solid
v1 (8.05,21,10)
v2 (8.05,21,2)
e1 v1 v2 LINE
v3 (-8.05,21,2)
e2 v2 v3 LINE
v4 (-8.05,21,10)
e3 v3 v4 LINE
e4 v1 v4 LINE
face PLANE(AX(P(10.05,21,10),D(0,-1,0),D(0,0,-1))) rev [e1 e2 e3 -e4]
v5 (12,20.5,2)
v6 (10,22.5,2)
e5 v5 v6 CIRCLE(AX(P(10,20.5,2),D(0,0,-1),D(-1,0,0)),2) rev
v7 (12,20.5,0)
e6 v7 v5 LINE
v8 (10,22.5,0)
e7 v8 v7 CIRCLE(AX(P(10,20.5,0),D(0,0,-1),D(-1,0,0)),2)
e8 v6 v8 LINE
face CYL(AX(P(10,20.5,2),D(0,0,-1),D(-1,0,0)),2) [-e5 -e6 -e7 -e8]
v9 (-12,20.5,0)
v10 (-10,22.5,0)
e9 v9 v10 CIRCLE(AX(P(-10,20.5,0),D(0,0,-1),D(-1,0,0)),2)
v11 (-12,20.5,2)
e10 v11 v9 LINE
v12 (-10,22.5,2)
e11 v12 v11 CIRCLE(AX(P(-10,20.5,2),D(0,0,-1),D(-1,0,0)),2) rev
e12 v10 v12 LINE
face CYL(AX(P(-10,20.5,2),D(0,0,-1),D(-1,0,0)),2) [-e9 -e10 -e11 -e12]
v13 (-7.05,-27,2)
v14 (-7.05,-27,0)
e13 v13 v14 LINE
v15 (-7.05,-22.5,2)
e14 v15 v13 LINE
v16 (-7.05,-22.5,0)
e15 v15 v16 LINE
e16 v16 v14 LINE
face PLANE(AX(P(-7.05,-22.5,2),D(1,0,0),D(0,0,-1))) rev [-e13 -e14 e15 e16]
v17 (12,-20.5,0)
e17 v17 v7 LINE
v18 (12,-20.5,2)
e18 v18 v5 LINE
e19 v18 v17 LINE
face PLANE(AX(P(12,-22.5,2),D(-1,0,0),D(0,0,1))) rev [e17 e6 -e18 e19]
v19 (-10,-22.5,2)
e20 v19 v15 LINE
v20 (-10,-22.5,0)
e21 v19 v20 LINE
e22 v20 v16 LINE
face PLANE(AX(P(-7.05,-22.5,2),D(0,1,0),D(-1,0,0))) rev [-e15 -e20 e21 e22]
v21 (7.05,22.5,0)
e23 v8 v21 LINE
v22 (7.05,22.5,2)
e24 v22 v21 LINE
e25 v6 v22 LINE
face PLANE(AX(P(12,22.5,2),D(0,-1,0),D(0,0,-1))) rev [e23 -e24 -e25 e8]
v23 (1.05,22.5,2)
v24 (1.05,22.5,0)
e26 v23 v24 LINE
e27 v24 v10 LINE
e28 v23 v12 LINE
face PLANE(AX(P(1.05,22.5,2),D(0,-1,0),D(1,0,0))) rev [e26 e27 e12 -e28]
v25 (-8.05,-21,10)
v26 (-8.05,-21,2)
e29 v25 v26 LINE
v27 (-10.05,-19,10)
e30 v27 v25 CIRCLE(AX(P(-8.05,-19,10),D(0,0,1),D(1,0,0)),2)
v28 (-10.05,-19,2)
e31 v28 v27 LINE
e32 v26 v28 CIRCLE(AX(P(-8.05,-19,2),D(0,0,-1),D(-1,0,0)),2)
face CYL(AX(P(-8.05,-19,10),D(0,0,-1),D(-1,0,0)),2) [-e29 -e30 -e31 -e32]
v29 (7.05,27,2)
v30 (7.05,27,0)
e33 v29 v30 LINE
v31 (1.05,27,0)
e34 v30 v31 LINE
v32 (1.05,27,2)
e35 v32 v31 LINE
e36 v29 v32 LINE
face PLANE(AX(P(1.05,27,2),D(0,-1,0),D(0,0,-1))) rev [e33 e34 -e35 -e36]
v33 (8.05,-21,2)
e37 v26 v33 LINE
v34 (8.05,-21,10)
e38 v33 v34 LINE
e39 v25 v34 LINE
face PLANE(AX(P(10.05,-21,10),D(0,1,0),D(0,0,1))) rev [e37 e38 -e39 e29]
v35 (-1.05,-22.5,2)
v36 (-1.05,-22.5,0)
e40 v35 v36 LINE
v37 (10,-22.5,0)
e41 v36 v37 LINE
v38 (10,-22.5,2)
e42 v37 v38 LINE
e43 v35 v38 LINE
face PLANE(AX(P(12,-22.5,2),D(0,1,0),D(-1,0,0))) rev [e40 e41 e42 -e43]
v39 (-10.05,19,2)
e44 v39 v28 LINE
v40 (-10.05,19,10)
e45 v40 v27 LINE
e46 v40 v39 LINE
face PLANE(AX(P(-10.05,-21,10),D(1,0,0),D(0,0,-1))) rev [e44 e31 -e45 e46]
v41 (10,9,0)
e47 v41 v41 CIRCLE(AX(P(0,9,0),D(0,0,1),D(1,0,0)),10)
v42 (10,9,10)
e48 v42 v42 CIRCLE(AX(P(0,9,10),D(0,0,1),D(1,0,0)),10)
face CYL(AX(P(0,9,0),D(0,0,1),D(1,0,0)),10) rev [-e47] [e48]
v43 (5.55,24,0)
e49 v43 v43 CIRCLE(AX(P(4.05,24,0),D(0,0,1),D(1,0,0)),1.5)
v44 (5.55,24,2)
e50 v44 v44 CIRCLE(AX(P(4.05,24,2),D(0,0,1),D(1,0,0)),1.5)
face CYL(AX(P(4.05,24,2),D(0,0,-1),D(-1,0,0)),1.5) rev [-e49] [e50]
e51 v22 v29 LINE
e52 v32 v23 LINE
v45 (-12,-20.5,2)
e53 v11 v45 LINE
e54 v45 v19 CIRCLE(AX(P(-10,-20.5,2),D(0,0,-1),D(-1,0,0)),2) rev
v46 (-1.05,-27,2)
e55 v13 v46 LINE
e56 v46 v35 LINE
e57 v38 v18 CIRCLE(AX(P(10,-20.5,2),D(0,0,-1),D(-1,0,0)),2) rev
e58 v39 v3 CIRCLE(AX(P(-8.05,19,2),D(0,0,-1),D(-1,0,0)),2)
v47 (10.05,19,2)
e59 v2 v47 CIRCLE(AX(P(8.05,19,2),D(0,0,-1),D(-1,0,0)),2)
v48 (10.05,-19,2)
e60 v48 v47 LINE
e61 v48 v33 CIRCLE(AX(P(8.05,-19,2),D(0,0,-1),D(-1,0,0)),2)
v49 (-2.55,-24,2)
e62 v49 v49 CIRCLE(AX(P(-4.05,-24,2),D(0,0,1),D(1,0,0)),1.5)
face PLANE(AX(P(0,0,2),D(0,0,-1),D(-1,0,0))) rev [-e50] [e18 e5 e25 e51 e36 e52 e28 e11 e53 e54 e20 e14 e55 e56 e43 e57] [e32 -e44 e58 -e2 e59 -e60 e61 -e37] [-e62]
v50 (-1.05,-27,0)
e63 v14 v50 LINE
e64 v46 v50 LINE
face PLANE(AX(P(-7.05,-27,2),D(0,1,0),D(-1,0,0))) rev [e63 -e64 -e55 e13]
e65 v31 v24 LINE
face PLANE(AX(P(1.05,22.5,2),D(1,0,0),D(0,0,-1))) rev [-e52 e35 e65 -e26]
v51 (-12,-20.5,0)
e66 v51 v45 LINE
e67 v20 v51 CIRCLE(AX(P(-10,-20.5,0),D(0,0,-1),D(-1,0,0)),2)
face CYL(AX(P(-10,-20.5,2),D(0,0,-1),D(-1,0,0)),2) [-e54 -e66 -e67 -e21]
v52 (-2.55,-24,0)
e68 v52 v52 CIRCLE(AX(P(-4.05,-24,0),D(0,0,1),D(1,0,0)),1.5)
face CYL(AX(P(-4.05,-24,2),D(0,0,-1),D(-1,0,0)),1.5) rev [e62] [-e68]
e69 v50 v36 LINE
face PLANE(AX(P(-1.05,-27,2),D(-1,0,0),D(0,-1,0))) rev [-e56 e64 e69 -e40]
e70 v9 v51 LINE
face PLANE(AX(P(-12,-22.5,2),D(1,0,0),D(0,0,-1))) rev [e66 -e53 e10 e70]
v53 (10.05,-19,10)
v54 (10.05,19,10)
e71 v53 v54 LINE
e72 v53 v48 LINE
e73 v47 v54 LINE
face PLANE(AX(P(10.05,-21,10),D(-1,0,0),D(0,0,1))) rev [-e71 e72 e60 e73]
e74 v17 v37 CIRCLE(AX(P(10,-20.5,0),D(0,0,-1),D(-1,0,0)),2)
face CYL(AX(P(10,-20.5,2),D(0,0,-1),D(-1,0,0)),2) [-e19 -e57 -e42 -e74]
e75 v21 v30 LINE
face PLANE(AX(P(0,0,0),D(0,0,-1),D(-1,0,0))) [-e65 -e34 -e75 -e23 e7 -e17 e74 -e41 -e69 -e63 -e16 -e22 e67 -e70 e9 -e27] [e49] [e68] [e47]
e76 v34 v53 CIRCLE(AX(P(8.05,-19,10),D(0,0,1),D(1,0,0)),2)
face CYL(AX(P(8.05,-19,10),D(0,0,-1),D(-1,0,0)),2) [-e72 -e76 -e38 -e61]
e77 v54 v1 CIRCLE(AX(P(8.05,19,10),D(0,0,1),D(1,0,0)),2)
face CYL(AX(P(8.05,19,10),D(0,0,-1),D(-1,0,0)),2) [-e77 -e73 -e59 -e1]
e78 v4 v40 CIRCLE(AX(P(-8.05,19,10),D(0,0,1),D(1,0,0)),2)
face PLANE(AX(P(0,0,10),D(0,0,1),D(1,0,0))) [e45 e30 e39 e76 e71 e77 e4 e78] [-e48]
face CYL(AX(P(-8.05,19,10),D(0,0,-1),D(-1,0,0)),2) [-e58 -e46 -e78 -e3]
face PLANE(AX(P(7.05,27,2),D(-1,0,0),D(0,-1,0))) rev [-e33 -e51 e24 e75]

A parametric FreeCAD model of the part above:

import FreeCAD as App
import Part
import Sketcher

V = App.Vector


def edges_at(feature, points):
    """Names of the edges that pass closest to the given points."""
    edges = feature.Shape.Edges
    near = lambda p: min(range(len(edges)), key=lambda i: edges[i].distToShape(Part.Vertex(*p))[0])
    return sorted({f"Edge{near(p) + 1}" for p in points})


def add_polygon(sketch, points):
    """Adds a closed chain of lines whose ends are joined by coincident constraints."""
    first, n = sketch.GeometryCount, len(points)
    for a, b in zip(points, points[1:] + points[:1]):
        sketch.addGeometry(Part.LineSegment(App.Vector(*a, 0), App.Vector(*b, 0)), False)
    for i in range(n):
        sketch.addConstraint(Sketcher.Constraint("Coincident", first + i, 2, first + (i + 1) % n, 1))

doc = App.newDocument("Part")
body = doc.addObject("PartDesign::Body", "Body")

sketch1 = body.newObject("Sketcher::SketchObject", "Sketch")
sketch1.AttachmentSupport = (doc.getObject("XY_Plane"), [""])
sketch1.MapMode = "FlatFace"
add_polygon(sketch1, [(1.1, 27), (1.1, 22.5), (-12, 22.5), (-12, -22.5), (-7, -22.5), (-7, -27), (-1.1, -27), (-1.1, -22.5), (12, -22.5), (12, 22.5), (7, 22.5), (7, 27)])
sketch1.addGeometry(Part.Circle(V(-4, -24, 0), V(0, 0, 1), 1.5), False)
sketch1.addGeometry(Part.Circle(V(4, 24, 0), V(0, 0, 1), 1.5), False)
sketch1.addConstraint(Sketcher.Constraint("Vertical", 0))
sketch1.addConstraint(Sketcher.Constraint("Horizontal", 1))
sketch1.addConstraint(Sketcher.Constraint("Vertical", 2))
sketch1.addConstraint(Sketcher.Constraint("Horizontal", 3))
sketch1.addConstraint(Sketcher.Constraint("Vertical", 4))
sketch1.addConstraint(Sketcher.Constraint("Horizontal", 5))
sketch1.addConstraint(Sketcher.Constraint("Vertical", 6))
sketch1.addConstraint(Sketcher.Constraint("Horizontal", 7))
sketch1.addConstraint(Sketcher.Constraint("Vertical", 8))
sketch1.addConstraint(Sketcher.Constraint("Horizontal", 9))
sketch1.addConstraint(Sketcher.Constraint("Vertical", 10))
sketch1.addConstraint(Sketcher.Constraint("Horizontal", 11))
sketch1.addConstraint(Sketcher.Constraint("Equal", 12, 13))
sketch1.addConstraint(Sketcher.Constraint("Symmetric", 12, 3, 13, 3, -1, 1))
sketch1.addConstraint(Sketcher.Constraint("Symmetric", 0, 2, 6, 2, -1, 1))
sketch1.addConstraint(Sketcher.Constraint("Symmetric", 2, 2, 8, 2, -1, 1))
sketch1.addConstraint(Sketcher.Constraint("Symmetric", 4, 2, 10, 2, -1, 1))
sketch1.addConstraint(Sketcher.Constraint("Horizontal", 3, 2, 6, 2))
sketch1.addConstraint(Sketcher.Constraint("Diameter", 12, 3.0))
sketch1.addConstraint(Sketcher.Constraint("DistanceX", 5, 1, 5, 2, 6.0))
sketch1.addConstraint(Sketcher.Constraint("DistanceY", 2, 2, 2, 1, 45.0))
sketch1.addConstraint(Sketcher.Constraint("DistanceY", 0, 2, 0, 1, 4.5))
sketch1.addConstraint(Sketcher.Constraint("DistanceY", 12, 3, -1, 1, 24.0))
sketch1.addConstraint(Sketcher.Constraint("DistanceX", 1, 2, -1, 1, 12.0))
sketch1.addConstraint(Sketcher.Constraint("DistanceX", 0, 2, 13, 3, 3.0))
sketch1.addConstraint(Sketcher.Constraint("DistanceX", 1, 2, 1, 1, 13.05))
pad1 = body.newObject("PartDesign::Pad", "Pad")
pad1.Profile = sketch1
pad1.Length = 2
doc.recompute()

fillet = body.newObject("PartDesign::Fillet", "Fillet")
fillet.Base = (pad1, edges_at(pad1, [
    (12, 22.5, 1),
    (12, -22.5, 1),
    (-12, -22.5, 1),
    (-12, 22.5, 1),
]))
fillet.Radius = 2

sketch2 = body.newObject("Sketcher::SketchObject", "Sketch001")
sketch2.AttachmentSupport = (doc.getObject("XY_Plane"), [""])
sketch2.MapMode = "FlatFace"
sketch2.AttachmentOffset = App.Placement(V(0, 0, 2), App.Rotation())
add_polygon(sketch2, [(-10, 21), (-10, -21), (10, -21), (10, 21)])
sketch2.addConstraint(Sketcher.Constraint("Vertical", 0))
sketch2.addConstraint(Sketcher.Constraint("Horizontal", 1))
sketch2.addConstraint(Sketcher.Constraint("Vertical", 2))
sketch2.addConstraint(Sketcher.Constraint("Horizontal", 3))
sketch2.addConstraint(Sketcher.Constraint("Symmetric", 0, 2, 2, 2, -1, 1))
sketch2.addConstraint(Sketcher.Constraint("DistanceY", 0, 2, 0, 1, 42.0))
sketch2.addConstraint(Sketcher.Constraint("DistanceX", 1, 1, 1, 2, 20.1))
pad2 = body.newObject("PartDesign::Pad", "Pad001")
pad2.Profile = sketch2
pad2.Length = 8
doc.recompute()

fillet2 = body.newObject("PartDesign::Fillet", "Fillet001")
fillet2.Base = (pad2, edges_at(pad2, [
    (-10.05, 21, 6),
    (-10.05, -21, 6),
    (10.05, -21, 6),
    (10.05, 21, 6),
]))
fillet2.Radius = 2

sketch3 = body.newObject("Sketcher::SketchObject", "Sketch002")
sketch3.AttachmentSupport = (doc.getObject("XY_Plane"), [""])
sketch3.MapMode = "FlatFace"
sketch3.AttachmentOffset = App.Placement(V(0, 0, 10), App.Rotation())
sketch3.addGeometry(Part.Circle(V(0, 9, 0), V(0, 0, 1), 10), False)
sketch3.addConstraint(Sketcher.Constraint("PointOnObject", 0, 3, -2))
sketch3.addConstraint(Sketcher.Constraint("Diameter", 0, 20.0))
sketch3.addConstraint(Sketcher.Constraint("DistanceY", -1, 1, 0, 3, 9.0))
pocket1 = body.newObject("PartDesign::Pocket", "Pocket")
pocket1.Profile = sketch3
pocket1.Type = "ThroughAll"

doc.recompute()
